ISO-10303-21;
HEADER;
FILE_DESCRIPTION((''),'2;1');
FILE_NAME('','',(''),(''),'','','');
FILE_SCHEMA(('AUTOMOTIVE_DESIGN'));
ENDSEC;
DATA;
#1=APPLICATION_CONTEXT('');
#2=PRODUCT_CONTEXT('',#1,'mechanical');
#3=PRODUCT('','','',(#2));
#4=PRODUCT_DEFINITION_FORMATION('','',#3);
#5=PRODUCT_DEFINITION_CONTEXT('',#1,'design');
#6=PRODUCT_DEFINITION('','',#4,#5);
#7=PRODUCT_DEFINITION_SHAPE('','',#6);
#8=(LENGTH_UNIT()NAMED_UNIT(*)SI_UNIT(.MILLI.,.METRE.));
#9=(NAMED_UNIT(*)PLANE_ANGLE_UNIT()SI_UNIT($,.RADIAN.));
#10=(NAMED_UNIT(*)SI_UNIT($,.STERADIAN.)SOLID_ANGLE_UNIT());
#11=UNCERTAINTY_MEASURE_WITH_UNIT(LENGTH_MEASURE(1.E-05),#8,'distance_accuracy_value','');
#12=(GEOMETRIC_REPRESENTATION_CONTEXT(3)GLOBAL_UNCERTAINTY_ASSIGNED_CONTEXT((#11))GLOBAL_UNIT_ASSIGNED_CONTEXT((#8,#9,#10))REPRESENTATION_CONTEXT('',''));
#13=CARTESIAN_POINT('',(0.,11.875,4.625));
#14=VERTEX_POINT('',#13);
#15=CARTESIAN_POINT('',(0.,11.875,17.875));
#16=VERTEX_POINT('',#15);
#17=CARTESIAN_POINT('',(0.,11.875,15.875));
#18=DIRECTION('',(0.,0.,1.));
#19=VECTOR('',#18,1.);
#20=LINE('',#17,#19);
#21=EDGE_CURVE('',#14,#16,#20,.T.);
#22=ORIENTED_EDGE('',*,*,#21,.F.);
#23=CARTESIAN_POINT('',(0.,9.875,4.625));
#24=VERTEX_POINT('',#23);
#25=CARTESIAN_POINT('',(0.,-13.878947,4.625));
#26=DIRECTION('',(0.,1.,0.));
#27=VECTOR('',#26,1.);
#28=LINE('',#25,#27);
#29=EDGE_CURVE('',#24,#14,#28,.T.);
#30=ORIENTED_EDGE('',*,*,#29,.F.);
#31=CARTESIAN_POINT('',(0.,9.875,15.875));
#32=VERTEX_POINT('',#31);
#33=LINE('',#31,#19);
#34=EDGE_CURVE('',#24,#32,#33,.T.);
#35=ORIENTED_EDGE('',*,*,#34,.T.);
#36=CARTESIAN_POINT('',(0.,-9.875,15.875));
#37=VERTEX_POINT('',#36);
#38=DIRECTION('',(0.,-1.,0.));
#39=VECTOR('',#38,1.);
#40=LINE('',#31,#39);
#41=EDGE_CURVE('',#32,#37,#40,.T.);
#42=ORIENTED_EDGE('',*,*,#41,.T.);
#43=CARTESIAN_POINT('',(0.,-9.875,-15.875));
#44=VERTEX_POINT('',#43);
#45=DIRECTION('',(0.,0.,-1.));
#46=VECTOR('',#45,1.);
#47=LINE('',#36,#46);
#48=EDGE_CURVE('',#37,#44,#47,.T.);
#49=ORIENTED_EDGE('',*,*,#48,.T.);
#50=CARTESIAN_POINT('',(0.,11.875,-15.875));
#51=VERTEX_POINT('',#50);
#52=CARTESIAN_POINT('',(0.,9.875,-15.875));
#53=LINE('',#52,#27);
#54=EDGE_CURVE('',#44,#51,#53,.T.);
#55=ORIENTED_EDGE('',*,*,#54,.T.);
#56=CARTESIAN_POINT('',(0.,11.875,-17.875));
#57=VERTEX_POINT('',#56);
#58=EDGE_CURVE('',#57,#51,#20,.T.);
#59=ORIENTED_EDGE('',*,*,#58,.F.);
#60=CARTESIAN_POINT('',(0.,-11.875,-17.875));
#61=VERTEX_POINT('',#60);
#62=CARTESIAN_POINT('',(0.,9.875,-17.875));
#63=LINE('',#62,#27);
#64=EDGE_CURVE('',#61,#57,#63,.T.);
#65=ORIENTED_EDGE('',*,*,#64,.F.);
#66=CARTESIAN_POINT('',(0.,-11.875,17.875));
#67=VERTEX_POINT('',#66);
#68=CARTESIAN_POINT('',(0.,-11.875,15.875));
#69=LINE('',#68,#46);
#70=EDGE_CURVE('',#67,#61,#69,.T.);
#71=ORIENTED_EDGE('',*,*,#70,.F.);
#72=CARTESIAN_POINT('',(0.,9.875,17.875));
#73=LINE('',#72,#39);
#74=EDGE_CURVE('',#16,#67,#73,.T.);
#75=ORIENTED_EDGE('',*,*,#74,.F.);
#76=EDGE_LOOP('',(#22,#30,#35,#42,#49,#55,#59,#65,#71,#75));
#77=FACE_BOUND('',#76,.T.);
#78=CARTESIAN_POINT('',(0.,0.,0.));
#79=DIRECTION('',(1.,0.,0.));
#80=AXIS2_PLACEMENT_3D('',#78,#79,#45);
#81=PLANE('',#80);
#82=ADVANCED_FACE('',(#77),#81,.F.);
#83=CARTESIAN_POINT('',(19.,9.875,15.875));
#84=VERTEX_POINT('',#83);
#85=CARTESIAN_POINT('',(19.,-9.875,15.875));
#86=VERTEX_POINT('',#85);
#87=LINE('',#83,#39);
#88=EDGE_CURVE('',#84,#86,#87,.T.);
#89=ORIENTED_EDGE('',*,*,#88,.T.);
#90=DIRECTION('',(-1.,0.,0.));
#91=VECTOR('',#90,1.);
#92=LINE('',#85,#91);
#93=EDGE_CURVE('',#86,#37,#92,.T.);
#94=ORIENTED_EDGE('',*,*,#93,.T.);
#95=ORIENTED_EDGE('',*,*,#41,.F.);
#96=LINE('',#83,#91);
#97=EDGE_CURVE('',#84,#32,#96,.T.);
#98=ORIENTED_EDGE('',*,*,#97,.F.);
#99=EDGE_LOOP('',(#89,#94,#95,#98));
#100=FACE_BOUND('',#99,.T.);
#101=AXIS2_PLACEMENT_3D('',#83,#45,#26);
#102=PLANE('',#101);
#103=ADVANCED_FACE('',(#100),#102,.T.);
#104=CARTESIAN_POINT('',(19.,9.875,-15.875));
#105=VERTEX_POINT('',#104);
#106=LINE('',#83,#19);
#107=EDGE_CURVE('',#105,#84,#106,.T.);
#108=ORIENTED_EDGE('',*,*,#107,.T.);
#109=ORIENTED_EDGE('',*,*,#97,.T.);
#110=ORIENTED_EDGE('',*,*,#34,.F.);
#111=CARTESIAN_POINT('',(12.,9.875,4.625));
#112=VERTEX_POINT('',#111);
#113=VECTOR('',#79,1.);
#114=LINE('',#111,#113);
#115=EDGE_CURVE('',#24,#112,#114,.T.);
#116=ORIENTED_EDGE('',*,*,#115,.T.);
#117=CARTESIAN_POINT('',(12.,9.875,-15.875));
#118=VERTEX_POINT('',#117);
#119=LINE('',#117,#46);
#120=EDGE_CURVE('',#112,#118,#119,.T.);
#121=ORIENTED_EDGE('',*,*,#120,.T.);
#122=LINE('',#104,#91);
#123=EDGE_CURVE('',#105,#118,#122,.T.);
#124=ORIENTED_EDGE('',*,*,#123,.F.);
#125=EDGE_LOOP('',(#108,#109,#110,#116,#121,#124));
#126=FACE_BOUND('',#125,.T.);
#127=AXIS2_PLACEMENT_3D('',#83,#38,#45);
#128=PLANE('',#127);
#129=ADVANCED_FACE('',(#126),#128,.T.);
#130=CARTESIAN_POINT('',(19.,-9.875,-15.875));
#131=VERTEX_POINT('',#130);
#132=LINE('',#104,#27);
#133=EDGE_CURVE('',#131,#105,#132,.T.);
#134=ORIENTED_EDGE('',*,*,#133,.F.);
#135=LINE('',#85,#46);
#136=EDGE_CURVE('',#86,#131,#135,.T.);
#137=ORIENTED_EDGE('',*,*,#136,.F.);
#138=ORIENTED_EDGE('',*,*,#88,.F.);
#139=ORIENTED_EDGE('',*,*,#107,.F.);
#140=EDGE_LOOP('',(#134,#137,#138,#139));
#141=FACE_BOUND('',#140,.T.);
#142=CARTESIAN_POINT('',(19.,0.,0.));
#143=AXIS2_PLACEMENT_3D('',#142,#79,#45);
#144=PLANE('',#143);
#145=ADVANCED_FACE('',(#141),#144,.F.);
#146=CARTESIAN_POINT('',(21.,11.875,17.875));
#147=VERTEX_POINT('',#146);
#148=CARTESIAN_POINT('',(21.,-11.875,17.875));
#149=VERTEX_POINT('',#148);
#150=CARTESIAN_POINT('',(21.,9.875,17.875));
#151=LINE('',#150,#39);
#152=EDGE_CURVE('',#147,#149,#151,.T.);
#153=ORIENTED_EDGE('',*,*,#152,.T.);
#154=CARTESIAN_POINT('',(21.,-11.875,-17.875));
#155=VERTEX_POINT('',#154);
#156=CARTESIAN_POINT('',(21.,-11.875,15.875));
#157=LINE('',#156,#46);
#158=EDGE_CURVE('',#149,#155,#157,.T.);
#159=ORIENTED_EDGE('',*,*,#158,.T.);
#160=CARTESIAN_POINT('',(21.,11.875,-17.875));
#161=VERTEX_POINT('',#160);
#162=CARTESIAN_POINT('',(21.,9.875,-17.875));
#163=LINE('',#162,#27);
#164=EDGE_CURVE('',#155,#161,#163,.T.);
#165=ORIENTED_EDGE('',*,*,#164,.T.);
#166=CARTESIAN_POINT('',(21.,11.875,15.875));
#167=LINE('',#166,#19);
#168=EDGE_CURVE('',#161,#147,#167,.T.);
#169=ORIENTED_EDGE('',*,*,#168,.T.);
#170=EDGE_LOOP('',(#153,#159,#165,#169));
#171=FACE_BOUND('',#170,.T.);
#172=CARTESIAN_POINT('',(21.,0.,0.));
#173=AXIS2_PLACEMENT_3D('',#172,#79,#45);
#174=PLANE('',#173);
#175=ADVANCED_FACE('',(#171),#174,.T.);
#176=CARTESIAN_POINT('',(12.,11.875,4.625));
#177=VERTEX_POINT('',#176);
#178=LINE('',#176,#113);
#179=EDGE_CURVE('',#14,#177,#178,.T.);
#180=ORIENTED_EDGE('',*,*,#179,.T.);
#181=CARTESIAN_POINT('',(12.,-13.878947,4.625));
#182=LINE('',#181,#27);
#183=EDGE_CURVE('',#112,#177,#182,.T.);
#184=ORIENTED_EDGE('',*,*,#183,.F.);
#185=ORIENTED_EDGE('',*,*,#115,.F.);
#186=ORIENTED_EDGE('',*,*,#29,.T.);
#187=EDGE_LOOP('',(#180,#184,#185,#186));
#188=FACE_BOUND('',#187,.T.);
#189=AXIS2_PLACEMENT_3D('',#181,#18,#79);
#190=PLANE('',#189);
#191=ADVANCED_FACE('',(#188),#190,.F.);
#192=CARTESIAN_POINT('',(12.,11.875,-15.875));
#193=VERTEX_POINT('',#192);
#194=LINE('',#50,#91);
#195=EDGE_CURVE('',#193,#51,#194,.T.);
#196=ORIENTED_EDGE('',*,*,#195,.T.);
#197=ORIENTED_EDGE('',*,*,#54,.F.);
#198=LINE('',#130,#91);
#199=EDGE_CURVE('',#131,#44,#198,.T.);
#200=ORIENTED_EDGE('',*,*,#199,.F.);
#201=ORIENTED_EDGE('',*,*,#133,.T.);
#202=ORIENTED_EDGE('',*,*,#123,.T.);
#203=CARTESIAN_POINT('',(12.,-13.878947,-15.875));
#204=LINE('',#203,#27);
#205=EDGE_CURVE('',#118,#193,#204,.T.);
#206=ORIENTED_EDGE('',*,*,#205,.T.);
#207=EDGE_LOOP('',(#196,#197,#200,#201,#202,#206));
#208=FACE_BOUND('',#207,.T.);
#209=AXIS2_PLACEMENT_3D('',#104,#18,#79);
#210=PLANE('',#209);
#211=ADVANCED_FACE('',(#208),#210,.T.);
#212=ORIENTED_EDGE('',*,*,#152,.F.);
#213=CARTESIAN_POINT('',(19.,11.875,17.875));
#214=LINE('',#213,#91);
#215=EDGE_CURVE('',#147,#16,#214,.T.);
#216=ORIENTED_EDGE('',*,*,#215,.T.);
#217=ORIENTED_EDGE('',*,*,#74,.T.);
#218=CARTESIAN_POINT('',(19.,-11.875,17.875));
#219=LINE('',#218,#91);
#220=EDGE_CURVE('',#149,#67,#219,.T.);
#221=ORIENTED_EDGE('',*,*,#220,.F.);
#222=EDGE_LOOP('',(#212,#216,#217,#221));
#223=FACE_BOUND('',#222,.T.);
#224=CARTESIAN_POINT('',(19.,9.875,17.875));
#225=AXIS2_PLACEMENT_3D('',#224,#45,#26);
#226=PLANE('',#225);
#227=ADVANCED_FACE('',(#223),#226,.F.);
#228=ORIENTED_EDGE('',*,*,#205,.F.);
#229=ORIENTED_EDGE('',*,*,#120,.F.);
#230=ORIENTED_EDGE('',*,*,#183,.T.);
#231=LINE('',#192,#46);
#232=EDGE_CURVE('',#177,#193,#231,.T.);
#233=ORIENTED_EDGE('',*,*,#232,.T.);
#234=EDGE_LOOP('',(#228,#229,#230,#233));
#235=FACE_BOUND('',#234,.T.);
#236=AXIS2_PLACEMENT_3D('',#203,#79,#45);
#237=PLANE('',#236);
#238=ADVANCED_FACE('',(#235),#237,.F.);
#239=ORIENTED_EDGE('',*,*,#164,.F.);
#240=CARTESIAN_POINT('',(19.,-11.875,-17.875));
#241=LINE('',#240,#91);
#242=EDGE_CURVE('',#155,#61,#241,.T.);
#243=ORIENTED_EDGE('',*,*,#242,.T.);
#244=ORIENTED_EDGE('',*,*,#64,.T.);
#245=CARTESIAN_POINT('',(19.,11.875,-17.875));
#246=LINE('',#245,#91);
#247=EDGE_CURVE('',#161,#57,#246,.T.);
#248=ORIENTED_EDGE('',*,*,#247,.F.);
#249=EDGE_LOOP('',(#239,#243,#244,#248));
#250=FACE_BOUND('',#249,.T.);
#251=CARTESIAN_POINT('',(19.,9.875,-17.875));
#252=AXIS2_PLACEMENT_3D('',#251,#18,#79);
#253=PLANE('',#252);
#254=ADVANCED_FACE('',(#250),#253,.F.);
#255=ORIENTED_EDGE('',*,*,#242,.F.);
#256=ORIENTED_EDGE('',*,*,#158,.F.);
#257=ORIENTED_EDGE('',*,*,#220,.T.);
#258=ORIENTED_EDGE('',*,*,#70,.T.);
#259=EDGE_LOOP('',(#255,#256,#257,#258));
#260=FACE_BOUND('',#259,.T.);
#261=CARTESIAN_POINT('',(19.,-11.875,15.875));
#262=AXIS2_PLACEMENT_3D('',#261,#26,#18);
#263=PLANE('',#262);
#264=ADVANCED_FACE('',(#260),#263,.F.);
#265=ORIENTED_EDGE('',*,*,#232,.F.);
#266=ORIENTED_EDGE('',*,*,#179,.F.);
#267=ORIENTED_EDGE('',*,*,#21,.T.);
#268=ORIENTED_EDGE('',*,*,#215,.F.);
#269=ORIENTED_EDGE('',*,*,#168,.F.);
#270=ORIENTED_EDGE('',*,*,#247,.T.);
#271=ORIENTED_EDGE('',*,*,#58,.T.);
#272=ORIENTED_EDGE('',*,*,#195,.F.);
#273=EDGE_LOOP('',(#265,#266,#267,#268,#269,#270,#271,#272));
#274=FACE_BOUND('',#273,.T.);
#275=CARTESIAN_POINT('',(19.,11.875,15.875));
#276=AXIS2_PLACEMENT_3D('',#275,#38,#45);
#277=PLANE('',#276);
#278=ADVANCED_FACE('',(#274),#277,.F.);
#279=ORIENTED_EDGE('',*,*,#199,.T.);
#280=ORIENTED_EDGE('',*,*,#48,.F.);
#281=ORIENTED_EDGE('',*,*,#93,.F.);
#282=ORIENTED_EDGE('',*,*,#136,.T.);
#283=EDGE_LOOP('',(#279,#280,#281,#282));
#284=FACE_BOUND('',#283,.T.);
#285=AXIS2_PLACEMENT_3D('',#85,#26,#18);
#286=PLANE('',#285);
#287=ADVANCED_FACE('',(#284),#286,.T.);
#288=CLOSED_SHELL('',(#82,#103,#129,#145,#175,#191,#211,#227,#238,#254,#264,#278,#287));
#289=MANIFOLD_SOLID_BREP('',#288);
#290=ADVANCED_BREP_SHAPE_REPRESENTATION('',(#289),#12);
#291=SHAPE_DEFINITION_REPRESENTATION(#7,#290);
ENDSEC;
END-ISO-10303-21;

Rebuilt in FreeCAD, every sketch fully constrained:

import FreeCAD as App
import Part
import Sketcher
Q = App.Units.Quantity


def faces_at(feature, points):
    """Names of the faces that lie closest to the given points."""
    faces = feature.Shape.Faces
    near = lambda p: min(range(len(faces)), key=lambda i: faces[i].distToShape(Part.Vertex(*p))[0])
    return sorted({f"Face{near(p) + 1}" for p in points})

doc = App.newDocument("Part")
body = doc.addObject("PartDesign::Body", "Body")

# Sketch on YZ plane
sketch1 = body.newObject("Sketcher::SketchObject", "Sketch")
sketch1.AttachmentSupport = (doc.getObject("YZ_Plane"), [""])
sketch1.MapMode = "FlatFace"
sketch1.addGeometry(Part.LineSegment(App.Vector(10, 16, 0), App.Vector(-10, 16, 0)), False)
sketch1.addGeometry(Part.LineSegment(App.Vector(-10, 16, 0), App.Vector(-10, -16, 0)), False)
sketch1.addGeometry(Part.LineSegment(App.Vector(-10, -16, 0), App.Vector(10, -16, 0)), False)
sketch1.addGeometry(Part.LineSegment(App.Vector(10, -16, 0), App.Vector(10, 16, 0)), False)
sketch1.addConstraint(Sketcher.Constraint("Coincident", 0, 2, 1, 1))
sketch1.addConstraint(Sketcher.Constraint("Coincident", 1, 2, 2, 1))
sketch1.addConstraint(Sketcher.Constraint("Coincident", 2, 2, 3, 1))
sketch1.addConstraint(Sketcher.Constraint("Coincident", 3, 2, 0, 1))
sketch1.addConstraint(Sketcher.Constraint("Horizontal", 0))
sketch1.addConstraint(Sketcher.Constraint("Vertical", 1))
sketch1.addConstraint(Sketcher.Constraint("Horizontal", 2))
sketch1.addConstraint(Sketcher.Constraint("Vertical", 3))
sketch1.addConstraint(Sketcher.Constraint("Symmetric", 0, 2, 2, 2, -1, 1))
sketch1.addConstraint(Sketcher.Constraint("DistanceX", 0, 2, 0, 1, Q("19.75 mm")))
sketch1.addConstraint(Sketcher.Constraint("DistanceY", 1, 2, 1, 1, Q("31.75 mm")))
pad1 = body.newObject("PartDesign::Pad", "Pad")
pad1.Profile = sketch1
pad1.Length = 19
doc.recompute()

thickness = body.newObject("PartDesign::Thickness", "Thickness")
thickness.Base = (pad1, faces_at(pad1, [(0, 0, 0)]))
thickness.Value = 2
thickness.Reversed = False
thickness.Join = "Intersection"

# Sketch on XZ plane
sketch2 = body.newObject("Sketcher::SketchObject", "Sketch001")
sketch2.AttachmentSupport = (doc.getObject("XZ_Plane"), [""])
sketch2.MapMode = "FlatFace"
sketch2.AttachmentOffset = App.Placement(App.Vector(0, 0, -11.875), App.Rotation())
sketch2.addGeometry(Part.LineSegment(App.Vector(0, -16, 0), App.Vector(0, 5, 0)), False)
sketch2.addGeometry(Part.LineSegment(App.Vector(0, 5, 0), App.Vector(12, 5, 0)), False)
sketch2.addGeometry(Part.LineSegment(App.Vector(12, 5, 0), App.Vector(12, -16, 0)), False)
sketch2.addGeometry(Part.LineSegment(App.Vector(12, -16, 0), App.Vector(0, -16, 0)), False)
sketch2.addConstraint(Sketcher.Constraint("Coincident", 0, 2, 1, 1))
sketch2.addConstraint(Sketcher.Constraint("Coincident", 1, 2, 2, 1))
sketch2.addConstraint(Sketcher.Constraint("Coincident", 2, 2, 3, 1))
sketch2.addConstraint(Sketcher.Constraint("Coincident", 3, 2, 0, 1))
sketch2.addConstraint(Sketcher.Constraint("Vertical", 0))
sketch2.addConstraint(Sketcher.Constraint("Horizontal", 1))
sketch2.addConstraint(Sketcher.Constraint("Vertical", 2))
sketch2.addConstraint(Sketcher.Constraint("Horizontal", 3))
sketch2.addConstraint(Sketcher.Constraint("PointOnObject", 0, 2, -2))
sketch2.addConstraint(Sketcher.Constraint("DistanceX", 1, 1, 1, 2, Q("12 mm")))
sketch2.addConstraint(Sketcher.Constraint("DistanceY", 0, 1, 0, 2, Q("20.5 mm")))
sketch2.addConstraint(Sketcher.Constraint("DistanceY", -1, 1, 0, 2, Q("4.625 mm")))
pocket1 = body.newObject("PartDesign::Pocket", "Pocket")
pocket1.Profile = sketch2
pocket1.Length = 2
pocket1.Reversed = True

doc.recompute()
